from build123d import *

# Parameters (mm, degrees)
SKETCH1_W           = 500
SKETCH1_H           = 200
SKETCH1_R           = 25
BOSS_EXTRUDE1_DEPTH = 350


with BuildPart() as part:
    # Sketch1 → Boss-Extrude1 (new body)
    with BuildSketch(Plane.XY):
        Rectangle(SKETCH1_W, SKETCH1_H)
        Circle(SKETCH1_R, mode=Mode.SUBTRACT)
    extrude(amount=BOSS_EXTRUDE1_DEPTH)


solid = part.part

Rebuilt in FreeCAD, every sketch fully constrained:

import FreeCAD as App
import Part
import Sketcher

V = App.Vector
Q = App.Units.Quantity


def add_polygon(sketch, points):
    """Adds a closed chain of lines whose ends are joined by coincident constraints."""
    first, n = sketch.GeometryCount, len(points)
    for a, b in zip(points, points[1:] + points[:1]):
        sketch.addGeometry(Part.LineSegment(App.Vector(*a, 0), App.Vector(*b, 0)), False)
    for i in range(n):
        sketch.addConstraint(Sketcher.Constraint("Coincident", first + i, 2, first + (i + 1) % n, 1))

doc = App.newDocument("Part")
params = doc.addObject("Spreadsheet::Sheet", "Params")
for row, (alias, value) in enumerate([
    ("sketch1_diameter", "50 mm"),
    ("sketch1_width", "500 mm"),
    ("sketch1_height", "200 mm"),
    ("pad1_length", "350 mm"),
], start=1):
    params.set(f"A{row}", alias)
    params.set(f"B{row}", "=" + value)
    params.setAlias(f"B{row}", alias)

body = doc.addObject("PartDesign::Body", "Body")

# Sketch on XY plane
sketch1 = body.newObject("Sketcher::SketchObject", "Sketch")
sketch1.AttachmentSupport = (doc.getObject("XY_Plane"), [""])
sketch1.MapMode = "FlatFace"
add_polygon(sketch1, [(-250, 100), (-250, -100), (250, -100), (250, 100)])  # lines 0-3
sketch1.addGeometry(Part.Circle(V(0, 0, 0), V(0, 0, 1), 25), False)  # 4
sketch1.addConstraint(Sketcher.Constraint("Vertical", 0))
sketch1.addConstraint(Sketcher.Constraint("Horizontal", 1))
sketch1.addConstraint(Sketcher.Constraint("Vertical", 2))
sketch1.addConstraint(Sketcher.Constraint("Horizontal", 3))
sketch1.addConstraint(Sketcher.Constraint("Coincident", 4, 3, -1, 1))
sketch1.addConstraint(Sketcher.Constraint("Symmetric", 0, 2, 2, 2, -1, 1))
sketch1.addConstraint(Sketcher.Constraint("Diameter", 4, Q("50 mm")))
sketch1.addConstraint(Sketcher.Constraint("DistanceX", 1, 1, 1, 2, Q("500 mm")))
sketch1.addConstraint(Sketcher.Constraint("DistanceY", 0, 2, 0, 1, Q("200 mm")))
sketch1.setExpression("Constraints[10]", "Params.sketch1_diameter")
sketch1.setExpression("Constraints[11]", "Params.sketch1_width")
sketch1.setExpression("Constraints[12]", "Params.sketch1_height")
pad1 = body.newObject("PartDesign::Pad", "Pad")
pad1.Profile = sketch1
pad1.setExpression("Length", "Params.pad1_length")

doc.recompute()
